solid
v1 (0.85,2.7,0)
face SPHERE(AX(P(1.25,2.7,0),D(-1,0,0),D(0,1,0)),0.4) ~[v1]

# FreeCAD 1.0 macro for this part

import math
import FreeCAD as App
import Part
import Sketcher
Q = App.Units.Quantity

doc = App.newDocument("Part")
params = doc.addObject("Spreadsheet::Sheet", "Params")
for row, (alias, value) in enumerate([
    ("sketch1_radius", "0.4 mm"),
    ("revolution_angle", "360 deg"),
], start=1):
    params.set(f"A{row}", alias)
    params.set(f"B{row}", "=" + value)
    params.setAlias(f"B{row}", alias)

body = doc.addObject("PartDesign::Body", "Body")

sketch1 = body.newObject("Sketcher::SketchObject", "Sketch")
sketch1.AttachmentSupport = (doc.getObject("XY_Plane"), [""])
sketch1.MapMode = "FlatFace"
sketch1.addGeometry([
    Part.LineSegment(App.Vector(0.85, 2.7, 0), App.Vector(1.65, 2.7, 0)),
    Part.ArcOfCircle(Part.Circle(App.Vector(1.25, 2.7, 0), App.Vector(0, 0, 1), 0.4), math.radians(0), math.radians(180)),
], False)
sketch1.addGeometry(Part.LineSegment(App.Vector(0.85, 2.7, 0), App.Vector(1.65, 2.7, 0)), True)
sketch1.addConstraint([
    Sketcher.Constraint("Coincident", 0, 1, 1, 2),
    Sketcher.Constraint("Coincident", 1, 1, 0, 2),
    Sketcher.Constraint("Horizontal", 0),
    Sketcher.Constraint("Horizontal", 2),
    Sketcher.Constraint("Coincident", 2, 1, 0, 1),
    Sketcher.Constraint("Horizontal", 1, 3, 0, 1),
    Sketcher.Constraint("Equal", 0, 2),
    Sketcher.Constraint("Radius", 1, Q("0.4 mm")),
    Sketcher.Constraint("DistanceY", -1, 1, 1, 3, Q("2.7 mm")),
    Sketcher.Constraint("DistanceX", -1, 1, 1, 3, Q("1.25 mm")),
])
sketch1.setExpression("Constraints[7]", "Params.sketch1_radius")
revolution = body.newObject("PartDesign::Revolution", "Revolution")
revolution.Profile = sketch1
revolution.ReferenceAxis = (sketch1, ["Axis0"])
revolution.setExpression("Angle", "Params.revolution_angle")

doc.recompute()
